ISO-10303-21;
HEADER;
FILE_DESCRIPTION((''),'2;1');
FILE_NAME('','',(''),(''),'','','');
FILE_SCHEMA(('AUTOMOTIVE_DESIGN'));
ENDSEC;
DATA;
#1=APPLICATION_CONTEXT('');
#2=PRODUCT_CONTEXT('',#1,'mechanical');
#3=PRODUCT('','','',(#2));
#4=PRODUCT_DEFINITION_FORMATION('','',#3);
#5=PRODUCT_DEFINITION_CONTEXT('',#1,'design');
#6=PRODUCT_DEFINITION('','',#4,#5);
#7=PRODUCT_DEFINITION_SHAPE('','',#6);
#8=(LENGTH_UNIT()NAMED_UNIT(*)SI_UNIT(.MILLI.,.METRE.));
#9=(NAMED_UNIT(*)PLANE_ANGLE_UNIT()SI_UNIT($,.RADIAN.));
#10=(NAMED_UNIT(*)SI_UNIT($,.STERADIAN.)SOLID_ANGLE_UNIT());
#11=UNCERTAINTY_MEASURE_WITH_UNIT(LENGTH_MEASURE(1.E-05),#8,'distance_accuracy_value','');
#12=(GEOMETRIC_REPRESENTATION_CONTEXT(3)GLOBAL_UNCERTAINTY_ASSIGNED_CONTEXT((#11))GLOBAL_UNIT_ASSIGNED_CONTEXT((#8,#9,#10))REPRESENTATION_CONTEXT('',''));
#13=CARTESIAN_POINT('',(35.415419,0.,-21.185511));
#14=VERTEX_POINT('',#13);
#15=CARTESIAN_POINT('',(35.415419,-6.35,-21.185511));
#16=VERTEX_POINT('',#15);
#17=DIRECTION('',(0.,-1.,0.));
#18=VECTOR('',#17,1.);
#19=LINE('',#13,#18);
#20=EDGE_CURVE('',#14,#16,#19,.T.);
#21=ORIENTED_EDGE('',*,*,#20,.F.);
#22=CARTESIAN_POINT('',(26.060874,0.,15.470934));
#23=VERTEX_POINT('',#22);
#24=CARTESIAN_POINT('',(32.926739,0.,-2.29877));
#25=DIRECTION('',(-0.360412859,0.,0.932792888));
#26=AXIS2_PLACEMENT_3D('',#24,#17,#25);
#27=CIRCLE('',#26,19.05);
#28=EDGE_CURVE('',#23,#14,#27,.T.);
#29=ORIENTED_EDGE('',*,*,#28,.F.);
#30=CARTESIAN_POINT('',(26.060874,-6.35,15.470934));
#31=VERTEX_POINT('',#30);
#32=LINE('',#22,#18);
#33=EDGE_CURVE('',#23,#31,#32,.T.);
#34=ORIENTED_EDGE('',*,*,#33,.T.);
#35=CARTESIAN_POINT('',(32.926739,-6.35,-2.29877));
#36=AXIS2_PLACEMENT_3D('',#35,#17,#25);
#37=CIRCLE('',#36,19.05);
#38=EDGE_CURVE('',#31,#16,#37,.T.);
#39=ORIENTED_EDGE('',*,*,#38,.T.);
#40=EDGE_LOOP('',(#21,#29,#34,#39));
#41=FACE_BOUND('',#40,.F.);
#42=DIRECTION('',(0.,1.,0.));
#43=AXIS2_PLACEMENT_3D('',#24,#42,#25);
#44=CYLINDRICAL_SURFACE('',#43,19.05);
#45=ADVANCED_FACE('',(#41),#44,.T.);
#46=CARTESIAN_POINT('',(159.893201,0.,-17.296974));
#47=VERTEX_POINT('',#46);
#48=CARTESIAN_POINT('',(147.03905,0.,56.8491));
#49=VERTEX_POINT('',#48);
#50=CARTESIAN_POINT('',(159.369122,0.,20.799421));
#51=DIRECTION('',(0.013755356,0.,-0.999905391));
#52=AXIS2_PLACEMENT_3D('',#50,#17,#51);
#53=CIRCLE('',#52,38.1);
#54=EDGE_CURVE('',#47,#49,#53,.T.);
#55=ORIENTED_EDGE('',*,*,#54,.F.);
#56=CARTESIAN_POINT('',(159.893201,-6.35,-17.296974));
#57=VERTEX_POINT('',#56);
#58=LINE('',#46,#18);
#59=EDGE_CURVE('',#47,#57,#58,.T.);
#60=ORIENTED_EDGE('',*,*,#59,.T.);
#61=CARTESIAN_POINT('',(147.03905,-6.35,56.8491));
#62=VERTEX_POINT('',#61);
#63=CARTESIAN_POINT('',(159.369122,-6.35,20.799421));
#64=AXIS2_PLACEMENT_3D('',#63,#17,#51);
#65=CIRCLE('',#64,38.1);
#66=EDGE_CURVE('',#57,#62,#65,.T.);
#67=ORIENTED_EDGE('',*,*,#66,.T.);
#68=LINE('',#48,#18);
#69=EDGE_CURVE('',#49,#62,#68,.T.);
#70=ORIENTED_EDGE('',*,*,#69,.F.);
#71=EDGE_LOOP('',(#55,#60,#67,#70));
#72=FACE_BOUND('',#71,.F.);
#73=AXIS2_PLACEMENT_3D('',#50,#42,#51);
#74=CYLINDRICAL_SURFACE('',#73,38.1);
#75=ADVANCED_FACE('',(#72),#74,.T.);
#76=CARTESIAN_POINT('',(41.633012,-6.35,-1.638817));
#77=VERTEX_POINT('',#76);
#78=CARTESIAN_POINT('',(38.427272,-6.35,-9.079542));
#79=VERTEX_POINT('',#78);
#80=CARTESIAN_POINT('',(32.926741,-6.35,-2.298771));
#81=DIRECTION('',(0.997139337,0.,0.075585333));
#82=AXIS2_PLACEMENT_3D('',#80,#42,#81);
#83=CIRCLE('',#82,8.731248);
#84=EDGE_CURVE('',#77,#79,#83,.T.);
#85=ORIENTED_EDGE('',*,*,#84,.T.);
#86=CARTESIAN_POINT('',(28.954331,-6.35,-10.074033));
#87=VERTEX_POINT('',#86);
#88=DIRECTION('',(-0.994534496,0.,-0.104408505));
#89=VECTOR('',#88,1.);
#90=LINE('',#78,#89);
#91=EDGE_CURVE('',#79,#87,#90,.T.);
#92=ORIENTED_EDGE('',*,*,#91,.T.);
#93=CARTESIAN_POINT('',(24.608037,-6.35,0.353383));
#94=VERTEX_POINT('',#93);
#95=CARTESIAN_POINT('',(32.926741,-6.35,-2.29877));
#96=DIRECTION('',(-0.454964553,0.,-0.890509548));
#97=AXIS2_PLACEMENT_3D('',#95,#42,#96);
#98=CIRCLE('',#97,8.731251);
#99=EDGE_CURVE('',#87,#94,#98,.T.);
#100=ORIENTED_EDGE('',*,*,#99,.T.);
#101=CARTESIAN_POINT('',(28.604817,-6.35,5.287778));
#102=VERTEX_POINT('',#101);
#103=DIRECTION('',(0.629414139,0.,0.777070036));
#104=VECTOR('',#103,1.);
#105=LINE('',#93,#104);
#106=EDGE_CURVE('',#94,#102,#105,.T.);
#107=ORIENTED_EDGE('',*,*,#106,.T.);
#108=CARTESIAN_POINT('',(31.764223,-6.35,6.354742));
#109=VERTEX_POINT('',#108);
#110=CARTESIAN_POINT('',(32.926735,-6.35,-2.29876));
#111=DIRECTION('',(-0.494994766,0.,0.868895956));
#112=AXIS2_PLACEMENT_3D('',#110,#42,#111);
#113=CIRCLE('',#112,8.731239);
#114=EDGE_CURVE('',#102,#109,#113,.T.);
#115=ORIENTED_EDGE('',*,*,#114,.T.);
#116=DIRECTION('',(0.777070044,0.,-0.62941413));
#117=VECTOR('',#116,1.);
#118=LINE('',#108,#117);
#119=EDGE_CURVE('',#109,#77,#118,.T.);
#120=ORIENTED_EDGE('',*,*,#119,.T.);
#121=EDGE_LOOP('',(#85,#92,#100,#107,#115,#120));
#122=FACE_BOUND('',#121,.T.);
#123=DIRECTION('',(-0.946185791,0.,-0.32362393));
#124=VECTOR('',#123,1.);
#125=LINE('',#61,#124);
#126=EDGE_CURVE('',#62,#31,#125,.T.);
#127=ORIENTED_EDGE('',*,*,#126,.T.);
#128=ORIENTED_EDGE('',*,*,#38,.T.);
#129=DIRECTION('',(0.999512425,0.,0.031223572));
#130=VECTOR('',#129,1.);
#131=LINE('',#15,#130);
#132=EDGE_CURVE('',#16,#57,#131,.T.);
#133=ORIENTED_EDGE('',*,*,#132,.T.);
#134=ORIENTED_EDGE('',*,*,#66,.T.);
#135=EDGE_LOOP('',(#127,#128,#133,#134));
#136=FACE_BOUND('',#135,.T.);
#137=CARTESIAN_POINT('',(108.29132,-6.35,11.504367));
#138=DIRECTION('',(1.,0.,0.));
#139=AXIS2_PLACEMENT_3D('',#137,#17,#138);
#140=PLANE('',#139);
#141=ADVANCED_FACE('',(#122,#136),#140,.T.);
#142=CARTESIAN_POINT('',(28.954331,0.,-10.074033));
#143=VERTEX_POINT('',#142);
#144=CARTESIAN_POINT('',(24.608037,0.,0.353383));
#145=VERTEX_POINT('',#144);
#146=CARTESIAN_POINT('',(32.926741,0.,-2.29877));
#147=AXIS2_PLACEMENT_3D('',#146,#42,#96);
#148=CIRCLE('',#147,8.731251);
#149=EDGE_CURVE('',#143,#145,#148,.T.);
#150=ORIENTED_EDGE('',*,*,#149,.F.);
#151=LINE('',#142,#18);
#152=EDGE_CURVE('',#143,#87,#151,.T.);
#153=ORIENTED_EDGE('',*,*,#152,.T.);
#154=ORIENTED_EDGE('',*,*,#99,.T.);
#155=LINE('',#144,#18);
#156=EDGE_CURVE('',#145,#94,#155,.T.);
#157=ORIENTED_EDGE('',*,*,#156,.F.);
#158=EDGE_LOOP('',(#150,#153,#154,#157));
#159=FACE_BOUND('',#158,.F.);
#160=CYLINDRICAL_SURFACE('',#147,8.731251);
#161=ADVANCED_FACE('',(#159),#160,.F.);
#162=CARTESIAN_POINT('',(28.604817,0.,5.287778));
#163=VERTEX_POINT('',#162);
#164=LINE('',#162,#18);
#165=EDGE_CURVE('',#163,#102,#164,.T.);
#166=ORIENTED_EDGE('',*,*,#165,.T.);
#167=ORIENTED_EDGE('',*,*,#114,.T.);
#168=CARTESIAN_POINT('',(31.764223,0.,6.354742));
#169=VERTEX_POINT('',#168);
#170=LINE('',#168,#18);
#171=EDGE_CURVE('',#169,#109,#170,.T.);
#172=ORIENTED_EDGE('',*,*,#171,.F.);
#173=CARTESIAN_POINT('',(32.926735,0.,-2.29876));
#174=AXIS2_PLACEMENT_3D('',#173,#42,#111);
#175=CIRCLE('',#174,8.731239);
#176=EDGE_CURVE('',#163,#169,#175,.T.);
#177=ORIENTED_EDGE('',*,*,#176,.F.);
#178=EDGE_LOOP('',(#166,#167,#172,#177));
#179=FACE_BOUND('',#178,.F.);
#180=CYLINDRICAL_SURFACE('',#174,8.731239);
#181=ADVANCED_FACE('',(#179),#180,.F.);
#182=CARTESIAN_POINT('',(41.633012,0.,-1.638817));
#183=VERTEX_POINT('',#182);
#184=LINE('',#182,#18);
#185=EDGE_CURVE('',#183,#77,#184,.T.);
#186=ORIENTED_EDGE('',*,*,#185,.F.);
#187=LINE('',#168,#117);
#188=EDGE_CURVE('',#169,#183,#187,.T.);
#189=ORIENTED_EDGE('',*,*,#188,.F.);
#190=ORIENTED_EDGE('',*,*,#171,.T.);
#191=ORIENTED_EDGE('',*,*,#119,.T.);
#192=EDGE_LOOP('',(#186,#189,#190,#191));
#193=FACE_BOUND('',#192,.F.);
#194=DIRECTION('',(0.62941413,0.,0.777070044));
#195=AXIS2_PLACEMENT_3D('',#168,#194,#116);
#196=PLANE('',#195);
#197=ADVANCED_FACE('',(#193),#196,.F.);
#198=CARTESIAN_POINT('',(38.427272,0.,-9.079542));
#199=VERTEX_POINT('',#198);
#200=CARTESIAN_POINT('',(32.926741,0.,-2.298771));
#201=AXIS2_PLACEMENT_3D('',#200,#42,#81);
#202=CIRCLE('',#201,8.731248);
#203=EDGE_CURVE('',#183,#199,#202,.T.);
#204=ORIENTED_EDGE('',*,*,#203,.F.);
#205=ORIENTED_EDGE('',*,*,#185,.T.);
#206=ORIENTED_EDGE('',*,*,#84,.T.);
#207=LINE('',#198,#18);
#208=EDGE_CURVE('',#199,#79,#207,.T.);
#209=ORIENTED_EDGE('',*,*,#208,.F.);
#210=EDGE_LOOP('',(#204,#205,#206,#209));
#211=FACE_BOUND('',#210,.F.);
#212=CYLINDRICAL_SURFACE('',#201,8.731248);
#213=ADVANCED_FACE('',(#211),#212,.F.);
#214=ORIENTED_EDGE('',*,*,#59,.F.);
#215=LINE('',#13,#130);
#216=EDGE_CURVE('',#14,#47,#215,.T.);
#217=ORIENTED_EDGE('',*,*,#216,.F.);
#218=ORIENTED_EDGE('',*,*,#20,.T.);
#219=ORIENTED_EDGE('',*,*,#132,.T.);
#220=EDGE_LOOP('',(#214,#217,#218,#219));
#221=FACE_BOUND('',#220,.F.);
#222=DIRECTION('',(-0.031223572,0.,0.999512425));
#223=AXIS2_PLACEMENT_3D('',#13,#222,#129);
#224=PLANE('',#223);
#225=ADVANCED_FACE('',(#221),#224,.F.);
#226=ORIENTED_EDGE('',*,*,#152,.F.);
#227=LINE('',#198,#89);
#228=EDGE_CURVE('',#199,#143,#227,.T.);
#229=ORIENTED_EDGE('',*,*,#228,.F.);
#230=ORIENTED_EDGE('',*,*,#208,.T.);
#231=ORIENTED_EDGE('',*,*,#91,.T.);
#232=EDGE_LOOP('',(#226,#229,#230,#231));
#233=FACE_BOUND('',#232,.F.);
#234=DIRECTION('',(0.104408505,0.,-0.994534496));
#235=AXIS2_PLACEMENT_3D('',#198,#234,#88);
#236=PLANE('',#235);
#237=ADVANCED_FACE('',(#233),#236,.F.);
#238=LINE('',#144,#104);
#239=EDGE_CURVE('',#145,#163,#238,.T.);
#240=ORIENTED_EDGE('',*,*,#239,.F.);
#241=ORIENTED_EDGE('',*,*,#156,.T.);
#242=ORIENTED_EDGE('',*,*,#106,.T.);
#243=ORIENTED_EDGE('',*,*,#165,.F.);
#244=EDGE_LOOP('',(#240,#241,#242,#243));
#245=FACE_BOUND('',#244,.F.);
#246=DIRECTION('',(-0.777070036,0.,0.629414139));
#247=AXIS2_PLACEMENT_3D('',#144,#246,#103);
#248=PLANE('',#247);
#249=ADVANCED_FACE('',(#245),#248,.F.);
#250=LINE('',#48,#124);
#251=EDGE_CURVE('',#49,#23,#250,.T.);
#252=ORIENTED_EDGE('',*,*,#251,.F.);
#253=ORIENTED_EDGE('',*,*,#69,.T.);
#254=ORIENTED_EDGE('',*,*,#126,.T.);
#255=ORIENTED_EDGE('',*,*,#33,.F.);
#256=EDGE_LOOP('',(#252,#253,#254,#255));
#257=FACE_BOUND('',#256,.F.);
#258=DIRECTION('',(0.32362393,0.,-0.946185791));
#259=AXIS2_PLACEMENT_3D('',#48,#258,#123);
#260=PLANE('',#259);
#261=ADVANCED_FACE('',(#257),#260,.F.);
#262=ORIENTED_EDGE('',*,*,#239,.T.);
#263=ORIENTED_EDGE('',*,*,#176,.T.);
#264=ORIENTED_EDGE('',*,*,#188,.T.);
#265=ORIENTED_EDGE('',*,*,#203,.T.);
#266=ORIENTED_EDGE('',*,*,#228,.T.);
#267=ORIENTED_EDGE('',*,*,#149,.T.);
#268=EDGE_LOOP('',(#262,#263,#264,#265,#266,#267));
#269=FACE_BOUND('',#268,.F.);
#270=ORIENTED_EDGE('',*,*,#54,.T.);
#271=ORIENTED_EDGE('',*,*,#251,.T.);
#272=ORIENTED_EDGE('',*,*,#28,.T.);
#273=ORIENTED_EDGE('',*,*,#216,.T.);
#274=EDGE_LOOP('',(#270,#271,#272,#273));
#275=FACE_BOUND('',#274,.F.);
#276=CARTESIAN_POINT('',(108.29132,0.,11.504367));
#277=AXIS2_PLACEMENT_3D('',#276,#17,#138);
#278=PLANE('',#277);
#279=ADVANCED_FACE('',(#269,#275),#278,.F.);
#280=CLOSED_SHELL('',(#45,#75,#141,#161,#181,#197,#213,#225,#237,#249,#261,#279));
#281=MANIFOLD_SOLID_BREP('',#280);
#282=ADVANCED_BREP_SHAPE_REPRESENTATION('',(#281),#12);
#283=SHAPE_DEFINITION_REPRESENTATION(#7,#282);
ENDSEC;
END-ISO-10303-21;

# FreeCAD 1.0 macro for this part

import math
import FreeCAD as App
import Part
import Sketcher
from FreeCAD import Vector
Q = App.Units.Quantity

doc = App.newDocument("Part")
body = doc.addObject("PartDesign::Body", "Body")

# Sketch on XZ plane
sketch1 = doc.addObject("Sketcher::SketchObject", "Sketch")
body.addObject(sketch1)
sketch1.AttachmentSupport = (doc.XZ_Plane, [""])
sketch1.MapMode = "FlatFace"
sketch1.addGeometry([
    Part.LineSegment(Vector(147.03905, 56.8491, 0), Vector(26.060874, 15.470934, 0)),  # 0
    Part.ArcOfCircle(Part.Circle(Vector(32.926739, -2.29877, 0), Vector(0, 0, 1), 19.05), math.radians(111.125553), math.radians(277.506541)),  # 1
    Part.LineSegment(Vector(35.415419, -21.185511, 0), Vector(159.893201, -17.296974, 0)),  # 2
    Part.ArcOfCircle(Part.Circle(Vector(159.369122, 20.799421, 0), Vector(0, 0, 1), 38.1), math.radians(-89.211851), math.radians(108.882227)),  # 3
    Part.LineSegment(Vector(24.608037, 0.353383, 0), Vector(28.604817, 5.287778, 0)),  # 4
    Part.ArcOfCircle(Part.Circle(Vector(32.926735, -2.29876, 0), Vector(0, 0, 1), 8.731239), math.radians(97.651307), math.radians(119.669405)),  # 5
    Part.LineSegment(Vector(31.764223, 6.354742, 0), Vector(41.633012, -1.638817, 0)),  # 6
    Part.ArcOfCircle(Part.Circle(Vector(32.926741, -2.298771, 0), Vector(0, 0, 1), 8.731248), math.radians(-50.951191), math.radians(4.334855)),  # 7
    Part.LineSegment(Vector(38.427272, -9.079542, 0), Vector(28.954331, -10.074033, 0)),  # 8
    Part.ArcOfCircle(Part.Circle(Vector(32.926741, -2.29877, 0), Vector(0, 0, 1), 8.731251), math.radians(162.316778), math.radians(242.937346)),  # 9
], False)
sketch1.addConstraint([
    Sketcher.Constraint("Coincident", 0, 2, 1, 1),
    Sketcher.Constraint("Coincident", 1, 2, 2, 1),
    Sketcher.Constraint("Coincident", 2, 2, 3, 1),
    Sketcher.Constraint("Coincident", 3, 2, 0, 1),
    Sketcher.Constraint("Coincident", 4, 2, 5, 2),
    Sketcher.Constraint("Coincident", 5, 1, 6, 1),
    Sketcher.Constraint("Coincident", 6, 2, 7, 2),
    Sketcher.Constraint("Coincident", 7, 1, 8, 1),
    Sketcher.Constraint("Coincident", 8, 2, 9, 2),
    Sketcher.Constraint("Coincident", 9, 1, 4, 1),
    Sketcher.Constraint("Coincident", 7, 3, 1, 3),
    Sketcher.Constraint("Coincident", 9, 3, 1, 3),
    Sketcher.Constraint("Radius", 3, Q("1.5 in")),
    Sketcher.Constraint("Radius", 1, Q("0.75 in")),
    Sketcher.Constraint("Radius", 7, Q("0.3437499 in")),
    Sketcher.Constraint("Radius", 9, Q("0.3437501 in")),
    Sketcher.Constraint("Distance", 6, Q("0.5 in")),
    Sketcher.Constraint("Distance", 4, Q("0.25 in")),
    Sketcher.Constraint("Distance", 8, Q("0.375 in")),
    Sketcher.Constraint("Radius", 5, 8.731239),
    Sketcher.Constraint("DistanceX", 1, 2, 2, 2, Q("4.9007001 in")),
    Sketcher.Constraint("DistanceX", -1, 1, 2, 2, 159.893201),
    Sketcher.Constraint("DistanceY", -1, 1, 3, 2, 56.8491),
    Sketcher.Constraint("DistanceX", 9, 1, 1, 3, 8.318702),
    Sketcher.Constraint("DistanceX", -1, 1, 1, 3, 32.926739),
    Sketcher.Constraint("DistanceY", 1, 3, -1, 1, 2.29877),
    Sketcher.Constraint("DistanceX", -1, 1, 3, 3, 159.369122),
    Sketcher.Constraint("DistanceY", -1, 1, 3, 3, 20.799421),
    Sketcher.Constraint("DistanceY", 5, 3, -1, 1, 2.29876),
    Sketcher.Constraint("DistanceY", -1, 1, 4, 2, 5.287778),
    Sketcher.Constraint("DistanceX", -1, 1, 8, 2, 28.954331),
    Sketcher.Constraint("DistanceX", 0, 2, 5, 3, 6.865861),
    Sketcher.Constraint("DistanceX", 5, 1, 5, 3, 1.162512),
])
pad1 = doc.addObject("PartDesign::Pad", "Pad")
body.addObject(pad1)
pad1.Profile = sketch1
pad1.Length = Q("0.25 in")

doc.recompute()
